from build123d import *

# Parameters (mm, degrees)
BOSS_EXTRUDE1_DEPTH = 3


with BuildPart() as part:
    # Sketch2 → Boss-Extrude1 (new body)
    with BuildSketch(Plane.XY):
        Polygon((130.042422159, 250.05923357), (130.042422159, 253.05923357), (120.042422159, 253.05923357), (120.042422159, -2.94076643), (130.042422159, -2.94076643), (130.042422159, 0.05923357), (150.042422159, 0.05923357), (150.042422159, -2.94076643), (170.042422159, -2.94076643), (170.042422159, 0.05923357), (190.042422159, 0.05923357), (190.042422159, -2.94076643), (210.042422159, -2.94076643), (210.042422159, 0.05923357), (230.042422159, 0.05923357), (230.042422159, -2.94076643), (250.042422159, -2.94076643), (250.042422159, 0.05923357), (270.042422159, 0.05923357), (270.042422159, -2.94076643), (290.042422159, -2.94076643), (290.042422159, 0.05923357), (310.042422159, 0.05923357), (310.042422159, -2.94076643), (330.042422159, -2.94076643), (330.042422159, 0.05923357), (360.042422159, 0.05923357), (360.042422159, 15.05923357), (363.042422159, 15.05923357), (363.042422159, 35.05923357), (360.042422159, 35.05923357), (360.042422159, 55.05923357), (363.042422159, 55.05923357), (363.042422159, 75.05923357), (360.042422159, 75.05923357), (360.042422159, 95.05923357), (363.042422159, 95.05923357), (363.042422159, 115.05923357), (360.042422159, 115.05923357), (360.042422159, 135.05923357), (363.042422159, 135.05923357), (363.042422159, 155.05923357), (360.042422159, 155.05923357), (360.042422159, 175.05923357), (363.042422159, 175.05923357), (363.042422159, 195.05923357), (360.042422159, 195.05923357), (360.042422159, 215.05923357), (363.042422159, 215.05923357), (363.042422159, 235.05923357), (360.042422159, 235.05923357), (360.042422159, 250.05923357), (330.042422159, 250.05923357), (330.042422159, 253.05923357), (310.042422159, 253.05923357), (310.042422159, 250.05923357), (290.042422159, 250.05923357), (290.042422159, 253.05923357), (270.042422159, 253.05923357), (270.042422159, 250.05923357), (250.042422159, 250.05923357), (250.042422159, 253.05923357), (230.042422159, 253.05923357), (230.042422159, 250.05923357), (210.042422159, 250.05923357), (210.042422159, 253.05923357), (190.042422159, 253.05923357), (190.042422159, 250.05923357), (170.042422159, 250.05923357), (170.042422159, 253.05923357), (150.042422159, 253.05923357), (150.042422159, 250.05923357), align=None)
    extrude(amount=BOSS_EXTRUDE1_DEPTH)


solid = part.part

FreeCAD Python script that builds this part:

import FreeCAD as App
import Part
import Sketcher
Q = App.Units.Quantity

doc = App.newDocument("Part")
body = doc.addObject("PartDesign::Body", "Body")

# Sketch on XY plane
sketch1 = doc.addObject("Sketcher::SketchObject", "Sketch")
body.addObject(sketch1)
sketch1.AttachmentSupport = (doc.XY_Plane, [""])
sketch1.MapMode = "FlatFace"
sketch1.addGeometry([
    Part.LineSegment(App.Vector(130, 250.1, 0), App.Vector(130, 253.1, 0)),  # 0
    Part.LineSegment(App.Vector(130, 253.1, 0), App.Vector(120, 253.1, 0)),  # 1
    Part.LineSegment(App.Vector(120, 253.1, 0), App.Vector(120, -2.9, 0)),  # 2
    Part.LineSegment(App.Vector(120, -2.9, 0), App.Vector(130, -2.9, 0)),  # 3
    Part.LineSegment(App.Vector(130, -2.9, 0), App.Vector(130, 0.1, 0)),  # 4
    Part.LineSegment(App.Vector(130, 0.1, 0), App.Vector(150, 0.1, 0)),  # 5
    Part.LineSegment(App.Vector(150, 0.1, 0), App.Vector(150, -2.9, 0)),  # 6
    Part.LineSegment(App.Vector(150, -2.9, 0), App.Vector(170, -2.9, 0)),  # 7
    Part.LineSegment(App.Vector(170, -2.9, 0), App.Vector(170, 0.1, 0)),  # 8
    Part.LineSegment(App.Vector(170, 0.1, 0), App.Vector(190, 0.1, 0)),  # 9
    Part.LineSegment(App.Vector(190, 0.1, 0), App.Vector(190, -2.9, 0)),  # 10
    Part.LineSegment(App.Vector(190, -2.9, 0), App.Vector(210, -2.9, 0)),  # 11
    Part.LineSegment(App.Vector(210, -2.9, 0), App.Vector(210, 0.1, 0)),  # 12
    Part.LineSegment(App.Vector(210, 0.1, 0), App.Vector(230, 0.1, 0)),  # 13
    Part.LineSegment(App.Vector(230, 0.1, 0), App.Vector(230, -2.9, 0)),  # 14
    Part.LineSegment(App.Vector(230, -2.9, 0), App.Vector(250, -2.9, 0)),  # 15
    Part.LineSegment(App.Vector(250, -2.9, 0), App.Vector(250, 0.1, 0)),  # 16
    Part.LineSegment(App.Vector(250, 0.1, 0), App.Vector(270, 0.1, 0)),  # 17
    Part.LineSegment(App.Vector(270, 0.1, 0), App.Vector(270, -2.9, 0)),  # 18
    Part.LineSegment(App.Vector(270, -2.9, 0), App.Vector(290, -2.9, 0)),  # 19
    Part.LineSegment(App.Vector(290, -2.9, 0), App.Vector(290, 0.1, 0)),  # 20
    Part.LineSegment(App.Vector(290, 0.1, 0), App.Vector(310, 0.1, 0)),  # 21
    Part.LineSegment(App.Vector(310, 0.1, 0), App.Vector(310, -2.9, 0)),  # 22
    Part.LineSegment(App.Vector(310, -2.9, 0), App.Vector(330, -2.9, 0)),  # 23
    Part.LineSegment(App.Vector(330, -2.9, 0), App.Vector(330, 0.1, 0)),  # 24
    Part.LineSegment(App.Vector(330, 0.1, 0), App.Vector(360, 0.1, 0)),  # 25
    Part.LineSegment(App.Vector(360, 0.1, 0), App.Vector(360, 15.1, 0)),  # 26
    Part.LineSegment(App.Vector(360, 15.1, 0), App.Vector(363, 15.1, 0)),  # 27
    Part.LineSegment(App.Vector(363, 15.1, 0), App.Vector(363, 35.1, 0)),  # 28
    Part.LineSegment(App.Vector(363, 35.1, 0), App.Vector(360, 35.1, 0)),  # 29
    Part.LineSegment(App.Vector(360, 35.1, 0), App.Vector(360, 55.1, 0)),  # 30
    Part.LineSegment(App.Vector(360, 55.1, 0), App.Vector(363, 55.1, 0)),  # 31
    Part.LineSegment(App.Vector(363, 55.1, 0), App.Vector(363, 75.1, 0)),  # 32
    Part.LineSegment(App.Vector(363, 75.1, 0), App.Vector(360, 75.1, 0)),  # 33
    Part.LineSegment(App.Vector(360, 75.1, 0), App.Vector(360, 95.1, 0)),  # 34
    Part.LineSegment(App.Vector(360, 95.1, 0), App.Vector(363, 95.1, 0)),  # 35
    Part.LineSegment(App.Vector(363, 95.1, 0), App.Vector(363, 115.1, 0)),  # 36
    Part.LineSegment(App.Vector(363, 115.1, 0), App.Vector(360, 115.1, 0)),  # 37
    Part.LineSegment(App.Vector(360, 115.1, 0), App.Vector(360, 135.1, 0)),  # 38
    Part.LineSegment(App.Vector(360, 135.1, 0), App.Vector(363, 135.1, 0)),  # 39
    Part.LineSegment(App.Vector(363, 135.1, 0), App.Vector(363, 155.1, 0)),  # 40
    Part.LineSegment(App.Vector(363, 155.1, 0), App.Vector(360, 155.1, 0)),  # 41
    Part.LineSegment(App.Vector(360, 155.1, 0), App.Vector(360, 175.1, 0)),  # 42
    Part.LineSegment(App.Vector(360, 175.1, 0), App.Vector(363, 175.1, 0)),  # 43
    Part.LineSegment(App.Vector(363, 175.1, 0), App.Vector(363, 195.1, 0)),  # 44
    Part.LineSegment(App.Vector(363, 195.1, 0), App.Vector(360, 195.1, 0)),  # 45
    Part.LineSegment(App.Vector(360, 195.1, 0), App.Vector(360, 215.1, 0)),  # 46
    Part.LineSegment(App.Vector(360, 215.1, 0), App.Vector(363, 215.1, 0)),  # 47
    Part.LineSegment(App.Vector(363, 215.1, 0), App.Vector(363, 235.1, 0)),  # 48
    Part.LineSegment(App.Vector(363, 235.1, 0), App.Vector(360, 235.1, 0)),  # 49
    Part.LineSegment(App.Vector(360, 235.1, 0), App.Vector(360, 250.1, 0)),  # 50
    Part.LineSegment(App.Vector(360, 250.1, 0), App.Vector(330, 250.1, 0)),  # 51
    Part.LineSegment(App.Vector(330, 250.1, 0), App.Vector(330, 253.1, 0)),  # 52
    Part.LineSegment(App.Vector(330, 253.1, 0), App.Vector(310, 253.1, 0)),  # 53
    Part.LineSegment(App.Vector(310, 253.1, 0), App.Vector(310, 250.1, 0)),  # 54
    Part.LineSegment(App.Vector(310, 250.1, 0), App.Vector(290, 250.1, 0)),  # 55
    Part.LineSegment(App.Vector(290, 250.1, 0), App.Vector(290, 253.1, 0)),  # 56
    Part.LineSegment(App.Vector(290, 253.1, 0), App.Vector(270, 253.1, 0)),  # 57
    Part.LineSegment(App.Vector(270, 253.1, 0), App.Vector(270, 250.1, 0)),  # 58
    Part.LineSegment(App.Vector(270, 250.1, 0), App.Vector(250, 250.1, 0)),  # 59
    Part.LineSegment(App.Vector(250, 250.1, 0), App.Vector(250, 253.1, 0)),  # 60
    Part.LineSegment(App.Vector(250, 253.1, 0), App.Vector(230, 253.1, 0)),  # 61
    Part.LineSegment(App.Vector(230, 253.1, 0), App.Vector(230, 250.1, 0)),  # 62
    Part.LineSegment(App.Vector(230, 250.1, 0), App.Vector(210, 250.1, 0)),  # 63
    Part.LineSegment(App.Vector(210, 250.1, 0), App.Vector(210, 253.1, 0)),  # 64
    Part.LineSegment(App.Vector(210, 253.1, 0), App.Vector(190, 253.1, 0)),  # 65
    Part.LineSegment(App.Vector(190, 253.1, 0), App.Vector(190, 250.1, 0)),  # 66
    Part.LineSegment(App.Vector(190, 250.1, 0), App.Vector(170, 250.1, 0)),  # 67
    Part.LineSegment(App.Vector(170, 250.1, 0), App.Vector(170, 253.1, 0)),  # 68
    Part.LineSegment(App.Vector(170, 253.1, 0), App.Vector(150, 253.1, 0)),  # 69
    Part.LineSegment(App.Vector(150, 253.1, 0), App.Vector(150, 250.1, 0)),  # 70
    Part.LineSegment(App.Vector(150, 250.1, 0), App.Vector(130, 250.1, 0)),  # 71
], False)
sketch1.addConstraint([
    Sketcher.Constraint("Coincident", 0, 2, 1, 1),
    Sketcher.Constraint("Coincident", 1, 2, 2, 1),
    Sketcher.Constraint("Coincident", 2, 2, 3, 1),
    Sketcher.Constraint("Coincident", 3, 2, 4, 1),
    Sketcher.Constraint("Coincident", 4, 2, 5, 1),
    Sketcher.Constraint("Coincident", 5, 2, 6, 1),
    Sketcher.Constraint("Coincident", 6, 2, 7, 1),
    Sketcher.Constraint("Coincident", 7, 2, 8, 1),
    Sketcher.Constraint("Coincident", 8, 2, 9, 1),
    Sketcher.Constraint("Coincident", 9, 2, 10, 1),
    Sketcher.Constraint("Coincident", 10, 2, 11, 1),
    Sketcher.Constraint("Coincident", 11, 2, 12, 1),
    Sketcher.Constraint("Coincident", 12, 2, 13, 1),
    Sketcher.Constraint("Coincident", 13, 2, 14, 1),
    Sketcher.Constraint("Coincident", 14, 2, 15, 1),
    Sketcher.Constraint("Coincident", 15, 2, 16, 1),
    Sketcher.Constraint("Coincident", 16, 2, 17, 1),
    Sketcher.Constraint("Coincident", 17, 2, 18, 1),
    Sketcher.Constraint("Coincident", 18, 2, 19, 1),
    Sketcher.Constraint("Coincident", 19, 2, 20, 1),
    Sketcher.Constraint("Coincident", 20, 2, 21, 1),
    Sketcher.Constraint("Coincident", 21, 2, 22, 1),
    Sketcher.Constraint("Coincident", 22, 2, 23, 1),
    Sketcher.Constraint("Coincident", 23, 2, 24, 1),
    Sketcher.Constraint("Coincident", 24, 2, 25, 1),
    Sketcher.Constraint("Coincident", 25, 2, 26, 1),
    Sketcher.Constraint("Coincident", 26, 2, 27, 1),
    Sketcher.Constraint("Coincident", 27, 2, 28, 1),
    Sketcher.Constraint("Coincident", 28, 2, 29, 1),
    Sketcher.Constraint("Coincident", 29, 2, 30, 1),
    Sketcher.Constraint("Coincident", 30, 2, 31, 1),
    Sketcher.Constraint("Coincident", 31, 2, 32, 1),
    Sketcher.Constraint("Coincident", 32, 2, 33, 1),
    Sketcher.Constraint("Coincident", 33, 2, 34, 1),
    Sketcher.Constraint("Coincident", 34, 2, 35, 1),
    Sketcher.Constraint("Coincident", 35, 2, 36, 1),
    Sketcher.Constraint("Coincident", 36, 2, 37, 1),
    Sketcher.Constraint("Coincident", 37, 2, 38, 1),
    Sketcher.Constraint("Coincident", 38, 2, 39, 1),
    Sketcher.Constraint("Coincident", 39, 2, 40, 1),
    Sketcher.Constraint("Coincident", 40, 2, 41, 1),
    Sketcher.Constraint("Coincident", 41, 2, 42, 1),
    Sketcher.Constraint("Coincident", 42, 2, 43, 1),
    Sketcher.Constraint("Coincident", 43, 2, 44, 1),
    Sketcher.Constraint("Coincident", 44, 2, 45, 1),
    Sketcher.Constraint("Coincident", 45, 2, 46, 1),
    Sketcher.Constraint("Coincident", 46, 2, 47, 1),
    Sketcher.Constraint("Coincident", 47, 2, 48, 1),
    Sketcher.Constraint("Coincident", 48, 2, 49, 1),
    Sketcher.Constraint("Coincident", 49, 2, 50, 1),
    Sketcher.Constraint("Coincident", 50, 2, 51, 1),
    Sketcher.Constraint("Coincident", 51, 2, 52, 1),
    Sketcher.Constraint("Coincident", 52, 2, 53, 1),
    Sketcher.Constraint("Coincident", 53, 2, 54, 1),
    Sketcher.Constraint("Coincident", 54, 2, 55, 1),
    Sketcher.Constraint("Coincident", 55, 2, 56, 1),
    Sketcher.Constraint("Coincident", 56, 2, 57, 1),
    Sketcher.Constraint("Coincident", 57, 2, 58, 1),
    Sketcher.Constraint("Coincident", 58, 2, 59, 1),
    Sketcher.Constraint("Coincident", 59, 2, 60, 1),
    Sketcher.Constraint("Coincident", 60, 2, 61, 1),
    Sketcher.Constraint("Coincident", 61, 2, 62, 1),
    Sketcher.Constraint("Coincident", 62, 2, 63, 1),
    Sketcher.Constraint("Coincident", 63, 2, 64, 1),
    Sketcher.Constraint("Coincident", 64, 2, 65, 1),
    Sketcher.Constraint("Coincident", 65, 2, 66, 1),
    Sketcher.Constraint("Coincident", 66, 2, 67, 1),
    Sketcher.Constraint("Coincident", 67, 2, 68, 1),
    Sketcher.Constraint("Coincident", 68, 2, 69, 1),
    Sketcher.Constraint("Coincident", 69, 2, 70, 1),
    Sketcher.Constraint("Coincident", 70, 2, 71, 1),
    Sketcher.Constraint("Coincident", 71, 2, 0, 1),
    Sketcher.Constraint("Vertical", 0),
    Sketcher.Constraint("Horizontal", 1),
    Sketcher.Constraint("Vertical", 2),
    Sketcher.Constraint("Horizontal", 3),
    Sketcher.Constraint("Vertical", 4),
    Sketcher.Constraint("Horizontal", 5),
    Sketcher.Constraint("Vertical", 6),
    Sketcher.Constraint("Horizontal", 7),
    Sketcher.Constraint("Vertical", 8),
    Sketcher.Constraint("Horizontal", 9),
    Sketcher.Constraint("Vertical", 10),
    Sketcher.Constraint("Horizontal", 11),
    Sketcher.Constraint("Vertical", 12),
    Sketcher.Constraint("Horizontal", 13),
    Sketcher.Constraint("Vertical", 14),
    Sketcher.Constraint("Horizontal", 15),
    Sketcher.Constraint("Vertical", 16),
    Sketcher.Constraint("Horizontal", 17),
    Sketcher.Constraint("Vertical", 18),
    Sketcher.Constraint("Horizontal", 19),
    Sketcher.Constraint("Vertical", 20),
    Sketcher.Constraint("Horizontal", 21),
    Sketcher.Constraint("Vertical", 22),
    Sketcher.Constraint("Horizontal", 23),
    Sketcher.Constraint("Vertical", 24),
    Sketcher.Constraint("Horizontal", 25),
    Sketcher.Constraint("Vertical", 26),
    Sketcher.Constraint("Horizontal", 27),
    Sketcher.Constraint("Vertical", 28),
    Sketcher.Constraint("Horizontal", 29),
    Sketcher.Constraint("Vertical", 30),
    Sketcher.Constraint("Horizontal", 31),
    Sketcher.Constraint("Vertical", 32),
    Sketcher.Constraint("Horizontal", 33),
    Sketcher.Constraint("Vertical", 34),
    Sketcher.Constraint("Horizontal", 35),
    Sketcher.Constraint("Vertical", 36),
    Sketcher.Constraint("Horizontal", 37),
    Sketcher.Constraint("Vertical", 38),
    Sketcher.Constraint("Horizontal", 39),
    Sketcher.Constraint("Vertical", 40),
    Sketcher.Constraint("Horizontal", 41),
    Sketcher.Constraint("Vertical", 42),
    Sketcher.Constraint("Horizontal", 43),
    Sketcher.Constraint("Vertical", 44),
    Sketcher.Constraint("Horizontal", 45),
    Sketcher.Constraint("Vertical", 46),
    Sketcher.Constraint("Horizontal", 47),
    Sketcher.Constraint("Vertical", 48),
    Sketcher.Constraint("Horizontal", 49),
    Sketcher.Constraint("Vertical", 50),
    Sketcher.Constraint("Horizontal", 51),
    Sketcher.Constraint("Vertical", 52),
    Sketcher.Constraint("Horizontal", 53),
    Sketcher.Constraint("Vertical", 54),
    Sketcher.Constraint("Horizontal", 55),
    Sketcher.Constraint("Vertical", 56),
    Sketcher.Constraint("Horizontal", 57),
    Sketcher.Constraint("Vertical", 58),
    Sketcher.Constraint("Horizontal", 59),
    Sketcher.Constraint("Vertical", 60),
    Sketcher.Constraint("Horizontal", 61),
    Sketcher.Constraint("Vertical", 62),
    Sketcher.Constraint("Horizontal", 63),
    Sketcher.Constraint("Vertical", 64),
    Sketcher.Constraint("Horizontal", 65),
    Sketcher.Constraint("Vertical", 66),
    Sketcher.Constraint("Horizontal", 67),
    Sketcher.Constraint("Vertical", 68),
    Sketcher.Constraint("Horizontal", 69),
    Sketcher.Constraint("Vertical", 70),
    Sketcher.Constraint("Horizontal", 71),
    Sketcher.Constraint("Horizontal", 3, 2, 6, 2),
    Sketcher.Constraint("Horizontal", 5, 2, 8, 2),
    Sketcher.Constraint("Horizontal", 7, 2, 10, 2),
    Sketcher.Constraint("Horizontal", 9, 2, 12, 2),
    Sketcher.Constraint("Horizontal", 11, 2, 14, 2),
    Sketcher.Constraint("Horizontal", 13, 2, 16, 2),
    Sketcher.Constraint("Horizontal", 15, 2, 18, 2),
    Sketcher.Constraint("Horizontal", 17, 2, 20, 2),
    Sketcher.Constraint("Horizontal", 19, 2, 22, 2),
    Sketcher.Constraint("Horizontal", 21, 2, 24, 2),
    Sketcher.Constraint("Horizontal", 1, 2, 52, 2),
    Sketcher.Constraint("Horizontal", 51, 2, 54, 2),
    Sketcher.Constraint("Horizontal", 53, 2, 56, 2),
    Sketcher.Constraint("Horizontal", 55, 2, 58, 2),
    Sketcher.Constraint("Horizontal", 57, 2, 60, 2),
    Sketcher.Constraint("Horizontal", 59, 2, 62, 2),
    Sketcher.Constraint("Horizontal", 61, 2, 64, 2),
    Sketcher.Constraint("Horizontal", 63, 2, 66, 2),
    Sketcher.Constraint("Horizontal", 65, 2, 68, 2),
    Sketcher.Constraint("Horizontal", 67, 2, 70, 2),
    Sketcher.Constraint("Vertical", 0, 2, 3, 2),
    Sketcher.Constraint("Vertical", 26, 2, 29, 2),
    Sketcher.Constraint("Vertical", 28, 2, 31, 2),
    Sketcher.Constraint("Vertical", 30, 2, 33, 2),
    Sketcher.Constraint("Vertical", 32, 2, 35, 2),
    Sketcher.Constraint("Vertical", 34, 2, 37, 2),
    Sketcher.Constraint("Vertical", 36, 2, 39, 2),
    Sketcher.Constraint("Vertical", 38, 2, 41, 2),
    Sketcher.Constraint("Vertical", 40, 2, 43, 2),
    Sketcher.Constraint("Vertical", 42, 2, 45, 2),
    Sketcher.Constraint("Vertical", 44, 2, 47, 2),
    Sketcher.Constraint("Vertical", 46, 2, 49, 2),
    Sketcher.Constraint("Vertical", 24, 2, 51, 2),
    Sketcher.Constraint("Vertical", 22, 2, 53, 2),
    Sketcher.Constraint("Vertical", 20, 2, 55, 2),
    Sketcher.Constraint("Vertical", 18, 2, 57, 2),
    Sketcher.Constraint("Vertical", 16, 2, 59, 2),
    Sketcher.Constraint("Vertical", 14, 2, 61, 2),
    Sketcher.Constraint("Vertical", 12, 2, 63, 2),
    Sketcher.Constraint("Vertical", 10, 2, 65, 2),
    Sketcher.Constraint("Vertical", 8, 2, 67, 2),
    Sketcher.Constraint("Vertical", 6, 2, 69, 2),
    Sketcher.Constraint("Equal", 5, 7),
    Sketcher.Constraint("Equal", 7, 9),
    Sketcher.Constraint("Equal", 9, 11),
    Sketcher.Constraint("Equal", 11, 13),
    Sketcher.Constraint("Equal", 13, 15),
    Sketcher.Constraint("Equal", 15, 17),
    Sketcher.Constraint("Equal", 17, 19),
    Sketcher.Constraint("Equal", 19, 21),
    Sketcher.Constraint("Equal", 21, 23),
    Sketcher.Constraint("Equal", 49, 0),
    Sketcher.Constraint("Equal", 0, 4),
    Sketcher.Constraint("Equal", 71, 28),
    Sketcher.Constraint("Equal", 28, 30),
    Sketcher.Constraint("Equal", 30, 32),
    Sketcher.Constraint("Equal", 32, 34),
    Sketcher.Constraint("Equal", 34, 36),
    Sketcher.Constraint("Equal", 36, 38),
    Sketcher.Constraint("Equal", 38, 40),
    Sketcher.Constraint("Equal", 40, 42),
    Sketcher.Constraint("Equal", 42, 44),
    Sketcher.Constraint("Equal", 44, 46),
    Sketcher.Constraint("Equal", 46, 48),
    Sketcher.Constraint("Equal", 26, 50),
    Sketcher.Constraint("DistanceX", 1, 2, 1, 1, Q("10 mm")),
    Sketcher.Constraint("DistanceX", 5, 1, 5, 2, Q("20 mm")),
    Sketcher.Constraint("DistanceX", 25, 1, 25, 2, Q("30 mm")),
    Sketcher.Constraint("DistanceX", 27, 1, 27, 2, Q("3 mm")),
    Sketcher.Constraint("DistanceY", 2, 2, 2, 1, Q("256 mm")),
    Sketcher.Constraint("DistanceX", -1, 1, 0, 2, Q("130.042422 mm")),
    Sketcher.Constraint("DistanceY", -1, 1, 0, 2, Q("253.059234 mm")),
])
pad1 = doc.addObject("PartDesign::Pad", "Pad")
body.addObject(pad1)
pad1.Profile = sketch1
pad1.Length = 3

doc.recompute()
